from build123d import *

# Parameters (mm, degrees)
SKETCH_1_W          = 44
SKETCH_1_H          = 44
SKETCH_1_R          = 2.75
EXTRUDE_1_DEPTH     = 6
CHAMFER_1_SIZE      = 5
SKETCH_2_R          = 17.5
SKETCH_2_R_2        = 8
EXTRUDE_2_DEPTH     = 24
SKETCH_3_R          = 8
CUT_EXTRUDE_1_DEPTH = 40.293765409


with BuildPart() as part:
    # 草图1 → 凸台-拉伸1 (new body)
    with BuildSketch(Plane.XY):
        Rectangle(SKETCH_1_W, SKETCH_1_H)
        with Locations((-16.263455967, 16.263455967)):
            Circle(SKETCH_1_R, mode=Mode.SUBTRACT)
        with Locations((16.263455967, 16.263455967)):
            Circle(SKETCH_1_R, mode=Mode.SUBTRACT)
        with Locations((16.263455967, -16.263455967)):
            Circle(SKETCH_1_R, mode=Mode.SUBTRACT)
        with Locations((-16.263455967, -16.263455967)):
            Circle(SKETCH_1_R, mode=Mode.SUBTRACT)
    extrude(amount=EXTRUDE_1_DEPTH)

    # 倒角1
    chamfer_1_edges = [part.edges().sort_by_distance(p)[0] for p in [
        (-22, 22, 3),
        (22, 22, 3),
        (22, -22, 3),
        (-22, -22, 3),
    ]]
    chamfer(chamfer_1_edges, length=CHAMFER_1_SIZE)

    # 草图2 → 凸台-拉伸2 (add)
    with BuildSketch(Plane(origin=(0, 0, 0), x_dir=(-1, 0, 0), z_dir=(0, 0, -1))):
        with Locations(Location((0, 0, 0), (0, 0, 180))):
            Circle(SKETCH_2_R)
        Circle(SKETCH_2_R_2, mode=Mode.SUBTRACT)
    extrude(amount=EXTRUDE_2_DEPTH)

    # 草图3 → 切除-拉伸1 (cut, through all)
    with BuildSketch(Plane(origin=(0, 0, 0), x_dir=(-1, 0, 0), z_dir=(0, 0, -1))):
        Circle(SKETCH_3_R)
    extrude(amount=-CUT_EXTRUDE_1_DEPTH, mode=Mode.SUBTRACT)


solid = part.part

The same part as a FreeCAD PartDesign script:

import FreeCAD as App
import Part
import Sketcher


def edges_at(feature, points):
    """Names of the edges that pass closest to the given points."""
    edges = feature.Shape.Edges
    near = lambda p: min(range(len(edges)), key=lambda i: edges[i].distToShape(Part.Vertex(*p))[0])
    return sorted({f"Edge{near(p) + 1}" for p in points})

doc = App.newDocument("Part")
body = doc.addObject("PartDesign::Body", "Body")

# Sketch on XY plane
sketch1 = doc.addObject("Sketcher::SketchObject", "Sketch")
body.addObject(sketch1)
sketch1.AttachmentSupport = (doc.XY_Plane, [""])
sketch1.MapMode = "FlatFace"
sketch1.addGeometry(Part.LineSegment(App.Vector(-22, 22, 0), App.Vector(-22, -22, 0)), False)
sketch1.addGeometry(Part.LineSegment(App.Vector(-22, -22, 0), App.Vector(22, -22, 0)), False)
sketch1.addGeometry(Part.LineSegment(App.Vector(22, -22, 0), App.Vector(22, 22, 0)), False)
sketch1.addGeometry(Part.LineSegment(App.Vector(22, 22, 0), App.Vector(-22, 22, 0)), False)
sketch1.addGeometry(Part.Circle(App.Vector(-16.3, -16.3, 0), App.Vector(0, 0, 1), 2.8), False)
sketch1.addGeometry(Part.Circle(App.Vector(16.3, -16.3, 0), App.Vector(0, 0, 1), 2.8), False)
sketch1.addGeometry(Part.Circle(App.Vector(-16.3, 16.3, 0), App.Vector(0, 0, 1), 2.8), False)
sketch1.addGeometry(Part.Circle(App.Vector(16.3, 16.3, 0), App.Vector(0, 0, 1), 2.8), False)
sketch1.addConstraint(Sketcher.Constraint("Coincident", 0, 2, 1, 1))
sketch1.addConstraint(Sketcher.Constraint("Coincident", 1, 2, 2, 1))
sketch1.addConstraint(Sketcher.Constraint("Coincident", 2, 2, 3, 1))
sketch1.addConstraint(Sketcher.Constraint("Coincident", 3, 2, 0, 1))
sketch1.addConstraint(Sketcher.Constraint("Vertical", 0))
sketch1.addConstraint(Sketcher.Constraint("Horizontal", 1))
sketch1.addConstraint(Sketcher.Constraint("Vertical", 2))
sketch1.addConstraint(Sketcher.Constraint("Horizontal", 3))
sketch1.addConstraint(Sketcher.Constraint("Equal", 4, 5))
sketch1.addConstraint(Sketcher.Constraint("Equal", 5, 6))
sketch1.addConstraint(Sketcher.Constraint("Equal", 6, 7))
sketch1.addConstraint(Sketcher.Constraint("Symmetric", 5, 3, 6, 3, -1, 1))
sketch1.addConstraint(Sketcher.Constraint("Symmetric", 4, 3, 7, 3, -1, 1))
sketch1.addConstraint(Sketcher.Constraint("Symmetric", 0, 2, 2, 2, -1, 1))
sketch1.addConstraint(Sketcher.Constraint("Symmetric", 4, 3, 5, 3, -2))
sketch1.addConstraint(Sketcher.Constraint("Equal", 3, 0))
sketch1.addConstraint(Sketcher.Constraint("Diameter", 4, 5.5))
sketch1.addConstraint(Sketcher.Constraint("DistanceX", 1, 1, 1, 2, 44.0))
sketch1.addConstraint(Sketcher.Constraint("DistanceX", 4, 3, 5, 3, 32.526912))
sketch1.addConstraint(Sketcher.Constraint("DistanceY", 4, 3, 6, 3, 32.526912))
pad1 = doc.addObject("PartDesign::Pad", "Pad")
body.addObject(pad1)
pad1.Profile = sketch1
pad1.Length = 6
doc.recompute()

chamfer = doc.addObject("PartDesign::Chamfer", "Chamfer")
body.addObject(chamfer)
chamfer.Base = (pad1, edges_at(pad1, [
    (-22, 22, 3),
    (22, 22, 3),
    (22, -22, 3),
    (-22, -22, 3),
]))
chamfer.Size = 5

# Sketch on XY plane
sketch2 = doc.addObject("Sketcher::SketchObject", "Sketch001")
body.addObject(sketch2)
sketch2.AttachmentSupport = (doc.XY_Plane, [""])
sketch2.MapMode = "FlatFace"
sketch2.addGeometry(Part.Circle(App.Vector(0, 0, 0), App.Vector(0, 0, 1), 18), False)
sketch2.addGeometry(Part.Circle(App.Vector(0, 0, 0), App.Vector(0, 0, 1), 8), False)
sketch2.addConstraint(Sketcher.Constraint("Coincident", 0, 3, -1, 1))
sketch2.addConstraint(Sketcher.Constraint("Coincident", 1, 3, -1, 1))
sketch2.addConstraint(Sketcher.Constraint("Diameter", 0, 35.0))
sketch2.addConstraint(Sketcher.Constraint("Diameter", 1, 16.0))
pad2 = doc.addObject("PartDesign::Pad", "Pad001")
body.addObject(pad2)
pad2.Profile = sketch2
pad2.Length = 24
pad2.Reversed = True

# Sketch on XY plane
sketch3 = doc.addObject("Sketcher::SketchObject", "Sketch002")
body.addObject(sketch3)
sketch3.AttachmentSupport = (doc.XY_Plane, [""])
sketch3.MapMode = "FlatFace"
sketch3.addGeometry(Part.Circle(App.Vector(0, 0, 0), App.Vector(0, 0, 1), 8), False)
sketch3.addConstraint(Sketcher.Constraint("Coincident", 0, 3, -1, 1))
sketch3.addConstraint(Sketcher.Constraint("Diameter", 0, 16.0))
pocket1 = doc.addObject("PartDesign::Pocket", "Pocket")
body.addObject(pocket1)
pocket1.Profile = sketch3
pocket1.Type = "ThroughAll"
pocket1.Reversed = True

doc.recompute()
